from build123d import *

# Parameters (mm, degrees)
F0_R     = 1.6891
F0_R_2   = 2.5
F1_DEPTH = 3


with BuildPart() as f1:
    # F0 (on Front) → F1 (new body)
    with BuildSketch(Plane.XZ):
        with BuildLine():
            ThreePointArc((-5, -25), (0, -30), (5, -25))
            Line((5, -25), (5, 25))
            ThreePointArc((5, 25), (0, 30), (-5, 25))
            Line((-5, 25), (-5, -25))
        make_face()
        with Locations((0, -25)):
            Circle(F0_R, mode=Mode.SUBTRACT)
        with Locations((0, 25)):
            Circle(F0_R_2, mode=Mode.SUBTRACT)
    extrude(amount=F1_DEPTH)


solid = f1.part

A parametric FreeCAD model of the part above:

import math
import FreeCAD as App
import Part
import Sketcher
from FreeCAD import Vector

doc = App.newDocument("Part")
body = doc.addObject("PartDesign::Body", "Body")

sketch1 = body.newObject("Sketcher::SketchObject", "Sketch")
sketch1.AttachmentSupport = (doc.getObject("XZ_Plane"), [""])
sketch1.MapMode = "FlatFace"
sketch1.addGeometry([
    Part.ArcOfCircle(Part.Circle(Vector(0, -25, 0), Vector(0, 0, 1), 5), math.radians(180), math.radians(360)),
    Part.LineSegment(Vector(5, -25, 0), Vector(5, 25, 0)),
    Part.ArcOfCircle(Part.Circle(Vector(0, 25, 0), Vector(0, 0, 1), 5), math.radians(0), math.radians(180)),
    Part.LineSegment(Vector(-5, 25, 0), Vector(-5, -25, 0)),
    Part.Circle(Vector(0, -25, 0), Vector(0, 0, 1), 1.7),
    Part.Circle(Vector(0, 25, 0), Vector(0, 0, 1), 2.5),
], False)
sketch1.addConstraint([
    Sketcher.Constraint("Tangent", 0, 2, 1, 1),
    Sketcher.Constraint("Tangent", 1, 2, 2, 1),
    Sketcher.Constraint("Tangent", 2, 2, 3, 1),
    Sketcher.Constraint("Tangent", 3, 2, 0, 1),
    Sketcher.Constraint("Vertical", 1),
    Sketcher.Constraint("Vertical", 3),
    Sketcher.Constraint("Coincident", 4, 3, 0, 3),
    Sketcher.Constraint("Coincident", 5, 3, 2, 3),
    Sketcher.Constraint("Symmetric", 0, 3, 2, 3, -1, 1),
    Sketcher.Constraint("Diameter", 5, 5.0),
    Sketcher.Constraint("Radius", 0, 5.0),
    Sketcher.Constraint("DistanceY", 1, 1, 1, 2, 50.0),
    Sketcher.Constraint("Diameter", 4, 3.3782),
])
pad1 = body.newObject("PartDesign::Pad", "Pad")
pad1.Profile = sketch1
pad1.Length = 3

doc.recompute()
